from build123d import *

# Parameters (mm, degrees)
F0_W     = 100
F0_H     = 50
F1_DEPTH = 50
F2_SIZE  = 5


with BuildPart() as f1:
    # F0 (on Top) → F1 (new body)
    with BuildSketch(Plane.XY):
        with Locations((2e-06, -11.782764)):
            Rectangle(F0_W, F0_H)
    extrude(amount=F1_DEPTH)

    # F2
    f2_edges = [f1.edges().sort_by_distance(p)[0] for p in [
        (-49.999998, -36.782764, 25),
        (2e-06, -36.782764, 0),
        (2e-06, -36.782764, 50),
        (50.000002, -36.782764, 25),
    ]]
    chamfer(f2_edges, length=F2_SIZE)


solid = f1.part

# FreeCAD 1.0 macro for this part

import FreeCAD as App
import Part
import Sketcher

V = App.Vector


def edges_at(feature, points):
    """Names of the edges that pass closest to the given points."""
    edges = feature.Shape.Edges
    near = lambda p: min(range(len(edges)), key=lambda i: edges[i].distToShape(Part.Vertex(*p))[0])
    return sorted({f"Edge{near(p) + 1}" for p in points})

doc = App.newDocument("Part")
body = doc.addObject("PartDesign::Body", "Body")

# Sketch on XY plane
sketch1 = body.newObject("Sketcher::SketchObject", "Sketch")
sketch1.AttachmentSupport = (doc.getObject("XY_Plane"), [""])
sketch1.MapMode = "FlatFace"
sketch1.addGeometry(Part.LineSegment(V(-49.999998, 13.217236, 0), V(-49.999998, -36.782764, 0)), False)
sketch1.addGeometry(Part.LineSegment(V(-49.999998, -36.782764, 0), V(50.000002, -36.782764, 0)), False)
sketch1.addGeometry(Part.LineSegment(V(50.000002, -36.782764, 0), V(50.000002, 13.217236, 0)), False)
sketch1.addGeometry(Part.LineSegment(V(50.000002, 13.217236, 0), V(-49.999998, 13.217236, 0)), False)
sketch1.addConstraint(Sketcher.Constraint("Coincident", 0, 2, 1, 1))
sketch1.addConstraint(Sketcher.Constraint("Coincident", 1, 2, 2, 1))
sketch1.addConstraint(Sketcher.Constraint("Coincident", 2, 2, 3, 1))
sketch1.addConstraint(Sketcher.Constraint("Coincident", 3, 2, 0, 1))
sketch1.addConstraint(Sketcher.Constraint("Vertical", 0))
sketch1.addConstraint(Sketcher.Constraint("Horizontal", 1))
sketch1.addConstraint(Sketcher.Constraint("Vertical", 2))
sketch1.addConstraint(Sketcher.Constraint("Horizontal", 3))
sketch1.addConstraint(Sketcher.Constraint("DistanceX", 1, 1, 1, 2, 100.0))
sketch1.addConstraint(Sketcher.Constraint("DistanceY", 0, 2, 0, 1, 50.0))
sketch1.addConstraint(Sketcher.Constraint("DistanceX", 0, 2, -1, 1, 49.999998))
sketch1.addConstraint(Sketcher.Constraint("DistanceY", 0, 2, -1, 1, 36.782764))
pad1 = body.newObject("PartDesign::Pad", "Pad")
pad1.Profile = sketch1
pad1.Length = 50
doc.recompute()

chamfer = body.newObject("PartDesign::Chamfer", "Chamfer")
chamfer.Base = (pad1, edges_at(pad1, [
    (-50, -36.783, 25),
    (0, -36.783, 0),
    (0, -36.783, 50),
    (50, -36.783, 25),
]))
chamfer.Size = 5

doc.recompute()
